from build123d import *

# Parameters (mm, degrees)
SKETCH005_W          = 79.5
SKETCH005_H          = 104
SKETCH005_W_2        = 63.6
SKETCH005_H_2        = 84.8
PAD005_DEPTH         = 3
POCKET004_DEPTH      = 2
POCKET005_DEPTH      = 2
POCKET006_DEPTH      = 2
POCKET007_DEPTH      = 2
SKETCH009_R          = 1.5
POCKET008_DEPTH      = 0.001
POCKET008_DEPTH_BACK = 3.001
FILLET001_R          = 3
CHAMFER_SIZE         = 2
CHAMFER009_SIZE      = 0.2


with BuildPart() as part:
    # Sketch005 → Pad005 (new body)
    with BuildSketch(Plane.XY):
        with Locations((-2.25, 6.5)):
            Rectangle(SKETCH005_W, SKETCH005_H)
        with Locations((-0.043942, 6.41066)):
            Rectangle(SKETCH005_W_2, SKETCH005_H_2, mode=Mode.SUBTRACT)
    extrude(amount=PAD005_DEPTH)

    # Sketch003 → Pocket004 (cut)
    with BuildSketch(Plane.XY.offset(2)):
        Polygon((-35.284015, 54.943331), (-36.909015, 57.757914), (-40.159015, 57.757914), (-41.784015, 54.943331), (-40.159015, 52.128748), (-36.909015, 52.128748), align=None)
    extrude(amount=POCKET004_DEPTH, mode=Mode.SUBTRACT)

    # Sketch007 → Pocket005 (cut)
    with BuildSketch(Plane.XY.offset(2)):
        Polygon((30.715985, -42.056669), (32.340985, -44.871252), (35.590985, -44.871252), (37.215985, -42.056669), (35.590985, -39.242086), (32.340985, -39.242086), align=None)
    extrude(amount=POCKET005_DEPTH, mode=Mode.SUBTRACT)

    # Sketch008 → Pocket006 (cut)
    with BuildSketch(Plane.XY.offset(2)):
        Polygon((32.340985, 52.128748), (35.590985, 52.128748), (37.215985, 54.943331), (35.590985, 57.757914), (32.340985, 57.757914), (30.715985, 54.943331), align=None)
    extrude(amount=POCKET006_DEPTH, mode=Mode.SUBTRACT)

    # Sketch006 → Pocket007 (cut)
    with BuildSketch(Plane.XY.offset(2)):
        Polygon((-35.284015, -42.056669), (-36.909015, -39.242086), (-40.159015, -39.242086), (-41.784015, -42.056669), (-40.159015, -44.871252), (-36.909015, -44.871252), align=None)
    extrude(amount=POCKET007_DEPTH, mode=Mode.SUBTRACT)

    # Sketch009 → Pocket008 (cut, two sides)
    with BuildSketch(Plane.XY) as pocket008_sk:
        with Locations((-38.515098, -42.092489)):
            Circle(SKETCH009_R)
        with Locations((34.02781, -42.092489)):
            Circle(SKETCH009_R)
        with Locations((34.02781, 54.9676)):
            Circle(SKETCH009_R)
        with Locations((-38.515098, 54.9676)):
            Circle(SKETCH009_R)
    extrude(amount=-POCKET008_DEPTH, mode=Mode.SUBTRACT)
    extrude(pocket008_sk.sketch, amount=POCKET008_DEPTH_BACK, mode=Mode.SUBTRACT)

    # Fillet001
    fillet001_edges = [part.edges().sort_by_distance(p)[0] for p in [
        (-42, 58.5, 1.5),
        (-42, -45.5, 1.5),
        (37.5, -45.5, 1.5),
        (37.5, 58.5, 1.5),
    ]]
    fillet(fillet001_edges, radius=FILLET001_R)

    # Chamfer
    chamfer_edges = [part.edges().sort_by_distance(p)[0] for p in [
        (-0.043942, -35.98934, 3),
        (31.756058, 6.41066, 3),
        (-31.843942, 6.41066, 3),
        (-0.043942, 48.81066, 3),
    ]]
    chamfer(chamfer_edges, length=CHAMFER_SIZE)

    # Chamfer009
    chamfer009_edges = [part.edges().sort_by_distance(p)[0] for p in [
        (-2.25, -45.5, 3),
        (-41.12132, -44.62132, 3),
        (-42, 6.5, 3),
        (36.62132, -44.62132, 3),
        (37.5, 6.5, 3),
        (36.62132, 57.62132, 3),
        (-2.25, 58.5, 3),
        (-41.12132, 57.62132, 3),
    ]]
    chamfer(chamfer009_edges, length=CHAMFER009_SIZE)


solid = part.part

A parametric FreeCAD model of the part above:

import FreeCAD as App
import Part
import Sketcher
Q = App.Units.Quantity


def edges_at(feature, points):
    """Names of the edges that pass closest to the given points."""
    edges = feature.Shape.Edges
    near = lambda p: min(range(len(edges)), key=lambda i: edges[i].distToShape(Part.Vertex(*p))[0])
    return sorted({f"Edge{near(p) + 1}" for p in points})

doc = App.newDocument("Part")
params = doc.addObject("Spreadsheet::Sheet", "Params")
for row, (alias, value) in enumerate([
    ("sketch1_height", "104 mm"),
    ("sketch1_width", "79.5 mm"),
    ("sketch1_width2", "63.6 mm"),
    ("sketch1_height2", "84.8 mm"),
    ("pad1_length", "3 mm"),
    ("sketch2_width", "3.25 mm"),
    ("pocket1_length", "2 mm"),
    ("sketch3_width", "3.25 mm"),
    ("pocket2_length", "2 mm"),
    ("sketch4_width", "3.25 mm"),
    ("pocket3_length", "2 mm"),
    ("sketch5_width", "3.25 mm"),
    ("pocket4_length", "2 mm"),
    ("sketch6_diameter", "3 mm"),
    ("fillet_radius", "3 mm"),
    ("chamfer_size", "2 mm"),
    ("chamfer2_size", "0.2 mm"),
], start=1):
    params.set(f"A{row}", alias)
    params.set(f"B{row}", "=" + value)
    params.setAlias(f"B{row}", alias)

body = doc.addObject("PartDesign::Body", "Body")

sketch1 = body.newObject("Sketcher::SketchObject", "Sketch")
sketch1.AttachmentSupport = (doc.getObject("XY_Plane"), [""])
sketch1.MapMode = "FlatFace"
sketch1.addGeometry(Part.LineSegment(App.Vector(-42, 58.5, 0), App.Vector(-42, -45.5, 0)), False)
sketch1.addGeometry(Part.LineSegment(App.Vector(-42, -45.5, 0), App.Vector(37.5, -45.5, 0)), False)
sketch1.addGeometry(Part.LineSegment(App.Vector(37.5, -45.5, 0), App.Vector(37.5, 58.5, 0)), False)
sketch1.addGeometry(Part.LineSegment(App.Vector(37.5, 58.5, 0), App.Vector(-42, 58.5, 0)), False)
sketch1.addGeometry(Part.LineSegment(App.Vector(31.756058, -35.98934, 0), App.Vector(-31.843942, -35.98934, 0)), False)
sketch1.addGeometry(Part.LineSegment(App.Vector(-31.843942, -35.98934, 0), App.Vector(-31.843942, 48.81066, 0)), False)
sketch1.addGeometry(Part.LineSegment(App.Vector(-31.843942, 48.81066, 0), App.Vector(31.756058, 48.81066, 0)), False)
sketch1.addGeometry(Part.LineSegment(App.Vector(31.756058, 48.81066, 0), App.Vector(31.756058, -35.98934, 0)), False)
sketch1.addConstraint(Sketcher.Constraint("Coincident", 0, 2, 1, 1))
sketch1.addConstraint(Sketcher.Constraint("Coincident", 1, 2, 2, 1))
sketch1.addConstraint(Sketcher.Constraint("Coincident", 2, 2, 3, 1))
sketch1.addConstraint(Sketcher.Constraint("Coincident", 3, 2, 0, 1))
sketch1.addConstraint(Sketcher.Constraint("Coincident", 4, 2, 5, 1))
sketch1.addConstraint(Sketcher.Constraint("Coincident", 5, 2, 6, 1))
sketch1.addConstraint(Sketcher.Constraint("Coincident", 6, 2, 7, 1))
sketch1.addConstraint(Sketcher.Constraint("Coincident", 7, 2, 4, 1))
sketch1.addConstraint(Sketcher.Constraint("Vertical", 0))
sketch1.addConstraint(Sketcher.Constraint("Horizontal", 1))
sketch1.addConstraint(Sketcher.Constraint("Vertical", 2))
sketch1.addConstraint(Sketcher.Constraint("Horizontal", 3))
sketch1.addConstraint(Sketcher.Constraint("Horizontal", 4))
sketch1.addConstraint(Sketcher.Constraint("Vertical", 5))
sketch1.addConstraint(Sketcher.Constraint("Horizontal", 6))
sketch1.addConstraint(Sketcher.Constraint("Vertical", 7))
sketch1.addConstraint(Sketcher.Constraint("DistanceY", 0, 2, 0, 1, 104.0))
sketch1.addConstraint(Sketcher.Constraint("DistanceX", 1, 1, 1, 2, 79.5))
sketch1.addConstraint(Sketcher.Constraint("DistanceX", 4, 2, 4, 1, 63.6))
sketch1.addConstraint(Sketcher.Constraint("DistanceY", 5, 1, 5, 2, 84.8))
sketch1.addConstraint(Sketcher.Constraint("DistanceX", 0, 2, -1, 1, 42.0))
sketch1.addConstraint(Sketcher.Constraint("DistanceY", 0, 2, -1, 1, 45.5))
sketch1.addConstraint(Sketcher.Constraint("DistanceX", 4, 2, -1, 1, 31.843942))
sketch1.addConstraint(Sketcher.Constraint("DistanceY", 4, 2, -1, 1, 35.98934))
sketch1.setExpression("Constraints[16]", "Params.sketch1_height")
sketch1.setExpression("Constraints[17]", "Params.sketch1_width")
sketch1.setExpression("Constraints[18]", "Params.sketch1_width2")
sketch1.setExpression("Constraints[19]", "Params.sketch1_height2")
pad1 = body.newObject("PartDesign::Pad", "Pad")
pad1.Profile = sketch1
pad1.setExpression("Length", "Params.pad1_length")

sketch2 = body.newObject("Sketcher::SketchObject", "Sketch001")
sketch2.AttachmentSupport = (doc.getObject("XY_Plane"), [""])
sketch2.MapMode = "FlatFace"
sketch2.AttachmentOffset = App.Placement(App.Vector(0, 0, 2), App.Rotation())
sketch2.addGeometry(Part.LineSegment(App.Vector(-35.284015, 54.943331, 0), App.Vector(-36.909015, 57.757914, 0)), False)
sketch2.addGeometry(Part.LineSegment(App.Vector(-36.909015, 57.757914, 0), App.Vector(-40.159015, 57.757914, 0)), False)
sketch2.addGeometry(Part.LineSegment(App.Vector(-40.159015, 57.757914, 0), App.Vector(-41.784015, 54.943331, 0)), False)
sketch2.addGeometry(Part.LineSegment(App.Vector(-41.784015, 54.943331, 0), App.Vector(-40.159015, 52.128748, 0)), False)
sketch2.addGeometry(Part.LineSegment(App.Vector(-40.159015, 52.128748, 0), App.Vector(-36.909015, 52.128748, 0)), False)
sketch2.addGeometry(Part.LineSegment(App.Vector(-36.909015, 52.128748, 0), App.Vector(-35.284015, 54.943331, 0)), False)
sketch2.addConstraint(Sketcher.Constraint("Coincident", 0, 2, 1, 1))
sketch2.addConstraint(Sketcher.Constraint("Coincident", 1, 2, 2, 1))
sketch2.addConstraint(Sketcher.Constraint("Coincident", 2, 2, 3, 1))
sketch2.addConstraint(Sketcher.Constraint("Coincident", 3, 2, 4, 1))
sketch2.addConstraint(Sketcher.Constraint("Coincident", 4, 2, 5, 1))
sketch2.addConstraint(Sketcher.Constraint("Coincident", 5, 2, 0, 1))
sketch2.addConstraint(Sketcher.Constraint("Horizontal", 1))
sketch2.addConstraint(Sketcher.Constraint("Horizontal", 4))
sketch2.addConstraint(Sketcher.Constraint("Parallel", 0, 3))
sketch2.addConstraint(Sketcher.Constraint("Parallel", 2, 5))
sketch2.addConstraint(Sketcher.Constraint("Horizontal", 2, 2, 5, 2))
sketch2.addConstraint(Sketcher.Constraint("Vertical", 1, 2, 3, 2))
sketch2.addConstraint(Sketcher.Constraint("Vertical", 0, 2, 4, 2))
sketch2.addConstraint(Sketcher.Constraint("Angle", 0, Q("119.999996 deg")))
sketch2.addConstraint(Sketcher.Constraint("DistanceX", 1, 2, 1, 1, 3.25))
sketch2.addConstraint(Sketcher.Constraint("DistanceX", 2, 2, 5, 2, 6.5))
sketch2.addConstraint(Sketcher.Constraint("DistanceY", -1, 1, 2, 2, 54.943331))
sketch2.addConstraint(Sketcher.Constraint("DistanceX", 0, 2, -1, 1, 36.909015))
sketch2.setExpression("Constraints[14]", "Params.sketch2_width")
pocket1 = body.newObject("PartDesign::Pocket", "Pocket")
pocket1.Profile = sketch2
pocket1.setExpression("Length", "Params.pocket1_length")
pocket1.Reversed = True

sketch3 = body.newObject("Sketcher::SketchObject", "Sketch002")
sketch3.AttachmentSupport = (doc.getObject("XY_Plane"), [""])
sketch3.MapMode = "FlatFace"
sketch3.AttachmentOffset = App.Placement(App.Vector(0, 0, 2), App.Rotation())
sketch3.addGeometry(Part.LineSegment(App.Vector(30.715985, -42.056669, 0), App.Vector(32.340985, -44.871252, 0)), False)
sketch3.addGeometry(Part.LineSegment(App.Vector(32.340985, -44.871252, 0), App.Vector(35.590985, -44.871252, 0)), False)
sketch3.addGeometry(Part.LineSegment(App.Vector(35.590985, -44.871252, 0), App.Vector(37.215985, -42.056669, 0)), False)
sketch3.addGeometry(Part.LineSegment(App.Vector(37.215985, -42.056669, 0), App.Vector(35.590985, -39.242086, 0)), False)
sketch3.addGeometry(Part.LineSegment(App.Vector(35.590985, -39.242086, 0), App.Vector(32.340985, -39.242086, 0)), False)
sketch3.addGeometry(Part.LineSegment(App.Vector(32.340985, -39.242086, 0), App.Vector(30.715985, -42.056669, 0)), False)
sketch3.addConstraint(Sketcher.Constraint("Coincident", 0, 2, 1, 1))
sketch3.addConstraint(Sketcher.Constraint("Coincident", 1, 2, 2, 1))
sketch3.addConstraint(Sketcher.Constraint("Coincident", 2, 2, 3, 1))
sketch3.addConstraint(Sketcher.Constraint("Coincident", 3, 2, 4, 1))
sketch3.addConstraint(Sketcher.Constraint("Coincident", 4, 2, 5, 1))
sketch3.addConstraint(Sketcher.Constraint("Coincident", 5, 2, 0, 1))
sketch3.addConstraint(Sketcher.Constraint("Horizontal", 1))
sketch3.addConstraint(Sketcher.Constraint("Horizontal", 4))
sketch3.addConstraint(Sketcher.Constraint("Parallel", 0, 3))
sketch3.addConstraint(Sketcher.Constraint("Parallel", 2, 5))
sketch3.addConstraint(Sketcher.Constraint("Horizontal", 2, 2, 5, 2))
sketch3.addConstraint(Sketcher.Constraint("Vertical", 1, 2, 3, 2))
sketch3.addConstraint(Sketcher.Constraint("Vertical", 0, 2, 4, 2))
sketch3.addConstraint(Sketcher.Constraint("Angle", 0, Q("-60.000004 deg")))
sketch3.addConstraint(Sketcher.Constraint("DistanceX", 1, 1, 1, 2, 3.25))
sketch3.addConstraint(Sketcher.Constraint("DistanceX", 5, 2, 2, 2, 6.5))
sketch3.addConstraint(Sketcher.Constraint("DistanceY", 0, 2, -1, 1, 44.871252))
sketch3.addConstraint(Sketcher.Constraint("DistanceX", -1, 1, 0, 2, 32.340985))
sketch3.setExpression("Constraints[14]", "Params.sketch3_width")
pocket2 = body.newObject("PartDesign::Pocket", "Pocket001")
pocket2.Profile = sketch3
pocket2.setExpression("Length", "Params.pocket2_length")
pocket2.Reversed = True

sketch4 = body.newObject("Sketcher::SketchObject", "Sketch003")
sketch4.AttachmentSupport = (doc.getObject("XY_Plane"), [""])
sketch4.MapMode = "FlatFace"
sketch4.AttachmentOffset = App.Placement(App.Vector(0, 0, 2), App.Rotation())
sketch4.addGeometry(Part.LineSegment(App.Vector(32.340985, 52.128748, 0), App.Vector(35.590985, 52.128748, 0)), False)
sketch4.addGeometry(Part.LineSegment(App.Vector(35.590985, 52.128748, 0), App.Vector(37.215985, 54.943331, 0)), False)
sketch4.addGeometry(Part.LineSegment(App.Vector(37.215985, 54.943331, 0), App.Vector(35.590985, 57.757914, 0)), False)
sketch4.addGeometry(Part.LineSegment(App.Vector(35.590985, 57.757914, 0), App.Vector(32.340985, 57.757914, 0)), False)
sketch4.addGeometry(Part.LineSegment(App.Vector(32.340985, 57.757914, 0), App.Vector(30.715985, 54.943331, 0)), False)
sketch4.addGeometry(Part.LineSegment(App.Vector(30.715985, 54.943331, 0), App.Vector(32.340985, 52.128748, 0)), False)
sketch4.addConstraint(Sketcher.Constraint("Coincident", 0, 2, 1, 1))
sketch4.addConstraint(Sketcher.Constraint("Coincident", 1, 2, 2, 1))
sketch4.addConstraint(Sketcher.Constraint("Coincident", 2, 2, 3, 1))
sketch4.addConstraint(Sketcher.Constraint("Coincident", 3, 2, 4, 1))
sketch4.addConstraint(Sketcher.Constraint("Coincident", 4, 2, 5, 1))
sketch4.addConstraint(Sketcher.Constraint("Coincident", 5, 2, 0, 1))
sketch4.addConstraint(Sketcher.Constraint("Horizontal", 0))
sketch4.addConstraint(Sketcher.Constraint("Horizontal", 3))
sketch4.addConstraint(Sketcher.Constraint("Parallel", 1, 4))
sketch4.addConstraint(Sketcher.Constraint("Parallel", 2, 5))
sketch4.addConstraint(Sketcher.Constraint("Horizontal", 1, 2, 4, 2))
sketch4.addConstraint(Sketcher.Constraint("Vertical", 0, 2, 2, 2))
sketch4.addConstraint(Sketcher.Constraint("Vertical", 3, 2, 5, 2))
sketch4.addConstraint(Sketcher.Constraint("Angle", 1, Q("60.000004 deg")))
sketch4.addConstraint(Sketcher.Constraint("DistanceX", 0, 1, 0, 2, 3.25))
sketch4.addConstraint(Sketcher.Constraint("DistanceX", 4, 2, 1, 2, 6.5))
sketch4.addConstraint(Sketcher.Constraint("DistanceY", -1, 1, 0, 2, 52.128748))
sketch4.addConstraint(Sketcher.Constraint("DistanceX", -1, 1, 0, 2, 35.590985))
sketch4.setExpression("Constraints[14]", "Params.sketch4_width")
pocket3 = body.newObject("PartDesign::Pocket", "Pocket002")
pocket3.Profile = sketch4
pocket3.setExpression("Length", "Params.pocket3_length")
pocket3.Reversed = True

sketch5 = body.newObject("Sketcher::SketchObject", "Sketch004")
sketch5.AttachmentSupport = (doc.getObject("XY_Plane"), [""])
sketch5.MapMode = "FlatFace"
sketch5.AttachmentOffset = App.Placement(App.Vector(0, 0, 2), App.Rotation())
sketch5.addGeometry(Part.LineSegment(App.Vector(-35.284015, -42.056669, 0), App.Vector(-36.909015, -39.242086, 0)), False)
sketch5.addGeometry(Part.LineSegment(App.Vector(-36.909015, -39.242086, 0), App.Vector(-40.159015, -39.242086, 0)), False)
sketch5.addGeometry(Part.LineSegment(App.Vector(-40.159015, -39.242086, 0), App.Vector(-41.784015, -42.056669, 0)), False)
sketch5.addGeometry(Part.LineSegment(App.Vector(-41.784015, -42.056669, 0), App.Vector(-40.159015, -44.871252, 0)), False)
sketch5.addGeometry(Part.LineSegment(App.Vector(-40.159015, -44.871252, 0), App.Vector(-36.909015, -44.871252, 0)), False)
sketch5.addGeometry(Part.LineSegment(App.Vector(-36.909015, -44.871252, 0), App.Vector(-35.284015, -42.056669, 0)), False)
sketch5.addConstraint(Sketcher.Constraint("Coincident", 0, 2, 1, 1))
sketch5.addConstraint(Sketcher.Constraint("Coincident", 1, 2, 2, 1))
sketch5.addConstraint(Sketcher.Constraint("Coincident", 2, 2, 3, 1))
sketch5.addConstraint(Sketcher.Constraint("Coincident", 3, 2, 4, 1))
sketch5.addConstraint(Sketcher.Constraint("Coincident", 4, 2, 5, 1))
sketch5.addConstraint(Sketcher.Constraint("Coincident", 5, 2, 0, 1))
sketch5.addConstraint(Sketcher.Constraint("Horizontal", 1))
sketch5.addConstraint(Sketcher.Constraint("Horizontal", 4))
sketch5.addConstraint(Sketcher.Constraint("Parallel", 0, 3))
sketch5.addConstraint(Sketcher.Constraint("Parallel", 2, 5))
sketch5.addConstraint(Sketcher.Constraint("Horizontal", 2, 2, 5, 2))
sketch5.addConstraint(Sketcher.Constraint("Vertical", 1, 2, 3, 2))
sketch5.addConstraint(Sketcher.Constraint("Vertical", 0, 2, 4, 2))
sketch5.addConstraint(Sketcher.Constraint("Angle", 0, Q("119.999996 deg")))
sketch5.addConstraint(Sketcher.Constraint("DistanceX", 1, 2, 1, 1, 3.25))
sketch5.addConstraint(Sketcher.Constraint("DistanceX", 2, 2, 5, 2, 6.5))
sketch5.addConstraint(Sketcher.Constraint("DistanceY", 2, 2, -1, 1, 42.056669))
sketch5.addConstraint(Sketcher.Constraint("DistanceX", 0, 2, -1, 1, 36.909015))
sketch5.setExpression("Constraints[14]", "Params.sketch5_width")
pocket4 = body.newObject("PartDesign::Pocket", "Pocket003")
pocket4.Profile = sketch5
pocket4.setExpression("Length", "Params.pocket4_length")
pocket4.Reversed = True

sketch6 = body.newObject("Sketcher::SketchObject", "Sketch005")
sketch6.AttachmentSupport = (doc.getObject("XY_Plane"), [""])
sketch6.MapMode = "FlatFace"
sketch6.addGeometry(Part.Circle(App.Vector(-38.515098, -42.092489, 0), App.Vector(0, 0, 1), 1.5), False)
sketch6.addGeometry(Part.Circle(App.Vector(34.02781, -42.092489, 0), App.Vector(0, 0, 1), 1.5), False)
sketch6.addGeometry(Part.Circle(App.Vector(34.02781, 54.9676, 0), App.Vector(0, 0, 1), 1.5), False)
sketch6.addGeometry(Part.Circle(App.Vector(-38.515098, 54.9676, 0), App.Vector(0, 0, 1), 1.5), False)
sketch6.addConstraint(Sketcher.Constraint("Equal", 0, 1))
sketch6.addConstraint(Sketcher.Constraint("Equal", 1, 2))
sketch6.addConstraint(Sketcher.Constraint("Equal", 2, 3))
sketch6.addConstraint(Sketcher.Constraint("Horizontal", 0, 3, 1, 3))
sketch6.addConstraint(Sketcher.Constraint("Horizontal", 2, 3, 3, 3))
sketch6.addConstraint(Sketcher.Constraint("Vertical", 1, 3, 2, 3))
sketch6.addConstraint(Sketcher.Constraint("Vertical", 0, 3, 3, 3))
sketch6.addConstraint(Sketcher.Constraint("Diameter", 0, 3.0))
sketch6.addConstraint(Sketcher.Constraint("DistanceX", 0, 3, -1, 1, 38.515098))
sketch6.addConstraint(Sketcher.Constraint("DistanceY", -1, 1, 2, 3, 54.9676))
sketch6.addConstraint(Sketcher.Constraint("DistanceY", 0, 3, -1, 1, 42.092489))
sketch6.addConstraint(Sketcher.Constraint("DistanceX", -1, 1, 1, 3, 34.02781))
sketch6.setExpression("Constraints[7]", "Params.sketch6_diameter")
pocket5 = body.newObject("PartDesign::Pocket", "Pocket004")
pocket5.Profile = sketch6
pocket5.Type = "ThroughAll"
pocket5.Midplane = True
doc.recompute()

fillet = body.newObject("PartDesign::Fillet", "Fillet")
fillet.Base = (pocket5, edges_at(pocket5, [
    (-42, 58.5, 1.5),
    (-42, -45.5, 1.5),
    (37.5, -45.5, 1.5),
    (37.5, 58.5, 1.5),
]))
fillet.setExpression("Radius", "Params.fillet_radius")
doc.recompute()

chamfer = body.newObject("PartDesign::Chamfer", "Chamfer")
chamfer.Base = (fillet, edges_at(fillet, [
    (-0.044, -35.989, 3),
    (31.756, 6.411, 3),
    (-31.844, 6.411, 3),
    (-0.044, 48.811, 3),
]))
chamfer.setExpression("Size", "Params.chamfer_size")
doc.recompute()

chamfer2 = body.newObject("PartDesign::Chamfer", "Chamfer001")
chamfer2.Base = (chamfer, edges_at(chamfer, [
    (-2.25, -45.5, 3),
    (-41.121, -44.621, 3),
    (-42, 6.5, 3),
    (36.621, -44.621, 3),
    (37.5, 6.5, 3),
    (36.621, 57.621, 3),
    (-2.25, 58.5, 3),
    (-41.121, 57.621, 3),
]))
chamfer2.setExpression("Size", "Params.chamfer2_size")

doc.recompute()
